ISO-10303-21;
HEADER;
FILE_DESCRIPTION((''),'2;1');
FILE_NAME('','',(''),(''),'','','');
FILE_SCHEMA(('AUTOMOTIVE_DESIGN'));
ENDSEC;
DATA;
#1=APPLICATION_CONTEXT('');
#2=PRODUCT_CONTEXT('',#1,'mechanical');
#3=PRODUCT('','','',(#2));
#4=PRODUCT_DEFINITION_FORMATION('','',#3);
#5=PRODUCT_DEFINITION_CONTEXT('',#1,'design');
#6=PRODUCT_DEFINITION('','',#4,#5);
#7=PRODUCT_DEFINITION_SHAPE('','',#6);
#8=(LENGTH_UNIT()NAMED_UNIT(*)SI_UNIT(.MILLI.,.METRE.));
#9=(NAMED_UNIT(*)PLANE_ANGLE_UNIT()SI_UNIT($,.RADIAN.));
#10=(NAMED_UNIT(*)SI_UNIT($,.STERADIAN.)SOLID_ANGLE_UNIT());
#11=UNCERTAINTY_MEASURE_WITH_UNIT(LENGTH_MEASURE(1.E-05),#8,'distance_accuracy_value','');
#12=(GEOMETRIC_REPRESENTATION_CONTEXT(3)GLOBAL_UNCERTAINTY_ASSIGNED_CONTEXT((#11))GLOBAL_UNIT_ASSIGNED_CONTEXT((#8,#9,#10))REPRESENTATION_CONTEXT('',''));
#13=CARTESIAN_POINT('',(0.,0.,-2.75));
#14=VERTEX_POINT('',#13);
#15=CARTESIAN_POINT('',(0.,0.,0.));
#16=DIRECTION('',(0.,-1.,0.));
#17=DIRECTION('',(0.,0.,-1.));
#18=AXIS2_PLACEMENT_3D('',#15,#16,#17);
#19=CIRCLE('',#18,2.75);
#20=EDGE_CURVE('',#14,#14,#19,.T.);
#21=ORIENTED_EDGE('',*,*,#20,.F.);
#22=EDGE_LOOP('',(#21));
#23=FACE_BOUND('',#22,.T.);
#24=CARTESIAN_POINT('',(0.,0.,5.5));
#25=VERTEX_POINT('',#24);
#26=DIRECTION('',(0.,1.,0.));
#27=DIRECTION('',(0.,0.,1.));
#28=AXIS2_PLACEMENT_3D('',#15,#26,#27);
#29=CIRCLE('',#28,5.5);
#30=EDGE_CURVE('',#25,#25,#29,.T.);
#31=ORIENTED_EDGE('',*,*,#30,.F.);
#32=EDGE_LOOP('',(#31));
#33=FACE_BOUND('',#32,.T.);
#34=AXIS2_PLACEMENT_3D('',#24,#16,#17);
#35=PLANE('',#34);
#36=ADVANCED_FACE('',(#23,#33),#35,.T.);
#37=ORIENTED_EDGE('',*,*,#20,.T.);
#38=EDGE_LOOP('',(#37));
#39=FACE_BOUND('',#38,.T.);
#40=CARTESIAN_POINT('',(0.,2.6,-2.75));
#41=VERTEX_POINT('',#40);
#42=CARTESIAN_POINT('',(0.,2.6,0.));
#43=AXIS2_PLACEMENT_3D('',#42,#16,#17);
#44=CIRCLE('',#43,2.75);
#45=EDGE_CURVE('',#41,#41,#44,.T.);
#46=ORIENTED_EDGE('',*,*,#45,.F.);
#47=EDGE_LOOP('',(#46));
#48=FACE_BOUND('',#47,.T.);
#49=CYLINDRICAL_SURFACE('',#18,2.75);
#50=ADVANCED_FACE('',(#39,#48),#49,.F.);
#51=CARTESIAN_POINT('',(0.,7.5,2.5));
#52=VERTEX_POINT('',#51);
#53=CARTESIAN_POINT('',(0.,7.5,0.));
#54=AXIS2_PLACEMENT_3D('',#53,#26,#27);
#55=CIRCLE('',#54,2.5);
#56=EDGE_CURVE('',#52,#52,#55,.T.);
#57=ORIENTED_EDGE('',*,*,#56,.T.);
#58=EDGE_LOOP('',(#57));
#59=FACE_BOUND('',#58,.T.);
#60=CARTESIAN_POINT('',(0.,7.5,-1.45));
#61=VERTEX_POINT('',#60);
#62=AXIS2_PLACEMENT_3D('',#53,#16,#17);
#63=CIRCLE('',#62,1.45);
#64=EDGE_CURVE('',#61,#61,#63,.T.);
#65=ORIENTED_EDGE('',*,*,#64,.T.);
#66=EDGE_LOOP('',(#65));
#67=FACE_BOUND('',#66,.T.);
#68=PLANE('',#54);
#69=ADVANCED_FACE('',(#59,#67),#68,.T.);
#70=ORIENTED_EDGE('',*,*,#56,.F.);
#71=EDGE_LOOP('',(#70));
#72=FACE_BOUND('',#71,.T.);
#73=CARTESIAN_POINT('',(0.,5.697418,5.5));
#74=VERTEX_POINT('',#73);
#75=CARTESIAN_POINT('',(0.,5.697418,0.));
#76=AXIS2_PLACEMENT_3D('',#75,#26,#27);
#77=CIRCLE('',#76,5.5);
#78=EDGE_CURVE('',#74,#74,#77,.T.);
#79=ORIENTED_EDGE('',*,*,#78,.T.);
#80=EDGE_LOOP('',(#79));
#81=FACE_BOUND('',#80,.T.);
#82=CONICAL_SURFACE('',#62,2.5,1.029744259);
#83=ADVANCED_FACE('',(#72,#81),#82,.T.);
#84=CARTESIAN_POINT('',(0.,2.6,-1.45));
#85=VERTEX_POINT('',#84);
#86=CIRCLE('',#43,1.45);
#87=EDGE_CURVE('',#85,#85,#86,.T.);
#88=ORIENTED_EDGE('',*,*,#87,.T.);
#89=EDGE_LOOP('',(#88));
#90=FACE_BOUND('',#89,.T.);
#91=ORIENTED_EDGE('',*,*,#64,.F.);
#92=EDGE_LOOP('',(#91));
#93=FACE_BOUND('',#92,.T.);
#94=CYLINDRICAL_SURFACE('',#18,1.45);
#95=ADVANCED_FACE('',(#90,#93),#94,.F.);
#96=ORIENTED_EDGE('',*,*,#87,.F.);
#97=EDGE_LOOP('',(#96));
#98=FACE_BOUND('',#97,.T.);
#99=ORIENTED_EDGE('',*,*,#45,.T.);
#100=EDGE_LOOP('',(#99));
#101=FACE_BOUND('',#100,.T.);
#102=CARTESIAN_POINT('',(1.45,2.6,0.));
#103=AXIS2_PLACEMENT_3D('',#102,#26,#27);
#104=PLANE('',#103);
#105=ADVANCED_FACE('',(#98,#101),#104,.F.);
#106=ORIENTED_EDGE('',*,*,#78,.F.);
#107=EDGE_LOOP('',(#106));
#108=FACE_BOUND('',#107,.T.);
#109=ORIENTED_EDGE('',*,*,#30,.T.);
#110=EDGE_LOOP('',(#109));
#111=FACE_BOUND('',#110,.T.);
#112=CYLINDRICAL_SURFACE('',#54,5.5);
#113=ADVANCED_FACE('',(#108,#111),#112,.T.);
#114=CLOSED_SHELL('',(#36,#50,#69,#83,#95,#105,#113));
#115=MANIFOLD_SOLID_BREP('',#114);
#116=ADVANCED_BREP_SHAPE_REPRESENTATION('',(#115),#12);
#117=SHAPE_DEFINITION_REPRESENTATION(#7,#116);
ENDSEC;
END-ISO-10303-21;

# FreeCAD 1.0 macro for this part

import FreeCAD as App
import Part
import Sketcher
from FreeCAD import Vector
Q = App.Units.Quantity


def add_polygon(sketch, points):
    """Adds a closed chain of lines whose ends are joined by coincident constraints."""
    first, n = sketch.GeometryCount, len(points)
    for a, b in zip(points, points[1:] + points[:1]):
        sketch.addGeometry(Part.LineSegment(App.Vector(*a, 0), App.Vector(*b, 0)), False)
    for i in range(n):
        sketch.addConstraint(Sketcher.Constraint("Coincident", first + i, 2, first + (i + 1) % n, 1))

doc = App.newDocument("Part")
body = doc.addObject("PartDesign::Body", "Body")

# Sketch on YZ plane
sketch1 = body.newObject("Sketcher::SketchObject", "Sketch")
sketch1.AttachmentSupport = (doc.getObject("YZ_Plane"), [""])
sketch1.MapMode = "FlatFace"
add_polygon(sketch1, [(5.697418, 5.5), (0, 5.5), (0, 0), (7.5, 0), (7.5, 2.5)])  # lines 0-4
sketch1.addConstraint(Sketcher.Constraint("Horizontal", 0))
sketch1.addConstraint(Sketcher.Constraint("Vertical", 1))
sketch1.addConstraint(Sketcher.Constraint("Horizontal", 2))
sketch1.addConstraint(Sketcher.Constraint("Vertical", 3))
sketch1.addConstraint(Sketcher.Constraint("Coincident", 1, 2, -1, 1))
sketch1.addConstraint(Sketcher.Constraint("Angle", 4, Q("121 deg")))
sketch1.addConstraint(Sketcher.Constraint("DistanceX", 2, 1, 2, 2, Q("7.5 mm")))
sketch1.addConstraint(Sketcher.Constraint("DistanceY", 1, 2, 1, 1, Q("5.5 mm")))
sketch1.addConstraint(Sketcher.Constraint("DistanceY", 3, 1, 3, 2, Q("2.5 mm")))
revolution = body.newObject("PartDesign::Revolution", "Revolution")
revolution.Profile = sketch1
revolution.ReferenceAxis = (sketch1, ["H_Axis"])
revolution.Angle = 360

# Sketch on XZ plane
sketch2 = body.newObject("Sketcher::SketchObject", "Sketch001")
sketch2.AttachmentSupport = (doc.getObject("XZ_Plane"), [""])
sketch2.MapMode = "FlatFace"
sketch2.addGeometry(Part.Circle(Vector(0, 0, 0), Vector(0, 0, 1), 1.45), False)
sketch2.addConstraint(Sketcher.Constraint("Coincident", 0, 3, -1, 1))
sketch2.addConstraint(Sketcher.Constraint("Diameter", 0, Q("2.9 mm")))
doc.recompute()
hole = body.newObject("PartDesign::Hole", "Hole")
hole.Profile = sketch2
hole.ThreadType = "None"
hole.Diameter = 2.9
hole.DepthType = "ThroughAll"
hole.HoleCutType = "Counterbore"
hole.HoleCutDiameter = 5.5
hole.HoleCutDepth = 2.6

doc.recompute()
